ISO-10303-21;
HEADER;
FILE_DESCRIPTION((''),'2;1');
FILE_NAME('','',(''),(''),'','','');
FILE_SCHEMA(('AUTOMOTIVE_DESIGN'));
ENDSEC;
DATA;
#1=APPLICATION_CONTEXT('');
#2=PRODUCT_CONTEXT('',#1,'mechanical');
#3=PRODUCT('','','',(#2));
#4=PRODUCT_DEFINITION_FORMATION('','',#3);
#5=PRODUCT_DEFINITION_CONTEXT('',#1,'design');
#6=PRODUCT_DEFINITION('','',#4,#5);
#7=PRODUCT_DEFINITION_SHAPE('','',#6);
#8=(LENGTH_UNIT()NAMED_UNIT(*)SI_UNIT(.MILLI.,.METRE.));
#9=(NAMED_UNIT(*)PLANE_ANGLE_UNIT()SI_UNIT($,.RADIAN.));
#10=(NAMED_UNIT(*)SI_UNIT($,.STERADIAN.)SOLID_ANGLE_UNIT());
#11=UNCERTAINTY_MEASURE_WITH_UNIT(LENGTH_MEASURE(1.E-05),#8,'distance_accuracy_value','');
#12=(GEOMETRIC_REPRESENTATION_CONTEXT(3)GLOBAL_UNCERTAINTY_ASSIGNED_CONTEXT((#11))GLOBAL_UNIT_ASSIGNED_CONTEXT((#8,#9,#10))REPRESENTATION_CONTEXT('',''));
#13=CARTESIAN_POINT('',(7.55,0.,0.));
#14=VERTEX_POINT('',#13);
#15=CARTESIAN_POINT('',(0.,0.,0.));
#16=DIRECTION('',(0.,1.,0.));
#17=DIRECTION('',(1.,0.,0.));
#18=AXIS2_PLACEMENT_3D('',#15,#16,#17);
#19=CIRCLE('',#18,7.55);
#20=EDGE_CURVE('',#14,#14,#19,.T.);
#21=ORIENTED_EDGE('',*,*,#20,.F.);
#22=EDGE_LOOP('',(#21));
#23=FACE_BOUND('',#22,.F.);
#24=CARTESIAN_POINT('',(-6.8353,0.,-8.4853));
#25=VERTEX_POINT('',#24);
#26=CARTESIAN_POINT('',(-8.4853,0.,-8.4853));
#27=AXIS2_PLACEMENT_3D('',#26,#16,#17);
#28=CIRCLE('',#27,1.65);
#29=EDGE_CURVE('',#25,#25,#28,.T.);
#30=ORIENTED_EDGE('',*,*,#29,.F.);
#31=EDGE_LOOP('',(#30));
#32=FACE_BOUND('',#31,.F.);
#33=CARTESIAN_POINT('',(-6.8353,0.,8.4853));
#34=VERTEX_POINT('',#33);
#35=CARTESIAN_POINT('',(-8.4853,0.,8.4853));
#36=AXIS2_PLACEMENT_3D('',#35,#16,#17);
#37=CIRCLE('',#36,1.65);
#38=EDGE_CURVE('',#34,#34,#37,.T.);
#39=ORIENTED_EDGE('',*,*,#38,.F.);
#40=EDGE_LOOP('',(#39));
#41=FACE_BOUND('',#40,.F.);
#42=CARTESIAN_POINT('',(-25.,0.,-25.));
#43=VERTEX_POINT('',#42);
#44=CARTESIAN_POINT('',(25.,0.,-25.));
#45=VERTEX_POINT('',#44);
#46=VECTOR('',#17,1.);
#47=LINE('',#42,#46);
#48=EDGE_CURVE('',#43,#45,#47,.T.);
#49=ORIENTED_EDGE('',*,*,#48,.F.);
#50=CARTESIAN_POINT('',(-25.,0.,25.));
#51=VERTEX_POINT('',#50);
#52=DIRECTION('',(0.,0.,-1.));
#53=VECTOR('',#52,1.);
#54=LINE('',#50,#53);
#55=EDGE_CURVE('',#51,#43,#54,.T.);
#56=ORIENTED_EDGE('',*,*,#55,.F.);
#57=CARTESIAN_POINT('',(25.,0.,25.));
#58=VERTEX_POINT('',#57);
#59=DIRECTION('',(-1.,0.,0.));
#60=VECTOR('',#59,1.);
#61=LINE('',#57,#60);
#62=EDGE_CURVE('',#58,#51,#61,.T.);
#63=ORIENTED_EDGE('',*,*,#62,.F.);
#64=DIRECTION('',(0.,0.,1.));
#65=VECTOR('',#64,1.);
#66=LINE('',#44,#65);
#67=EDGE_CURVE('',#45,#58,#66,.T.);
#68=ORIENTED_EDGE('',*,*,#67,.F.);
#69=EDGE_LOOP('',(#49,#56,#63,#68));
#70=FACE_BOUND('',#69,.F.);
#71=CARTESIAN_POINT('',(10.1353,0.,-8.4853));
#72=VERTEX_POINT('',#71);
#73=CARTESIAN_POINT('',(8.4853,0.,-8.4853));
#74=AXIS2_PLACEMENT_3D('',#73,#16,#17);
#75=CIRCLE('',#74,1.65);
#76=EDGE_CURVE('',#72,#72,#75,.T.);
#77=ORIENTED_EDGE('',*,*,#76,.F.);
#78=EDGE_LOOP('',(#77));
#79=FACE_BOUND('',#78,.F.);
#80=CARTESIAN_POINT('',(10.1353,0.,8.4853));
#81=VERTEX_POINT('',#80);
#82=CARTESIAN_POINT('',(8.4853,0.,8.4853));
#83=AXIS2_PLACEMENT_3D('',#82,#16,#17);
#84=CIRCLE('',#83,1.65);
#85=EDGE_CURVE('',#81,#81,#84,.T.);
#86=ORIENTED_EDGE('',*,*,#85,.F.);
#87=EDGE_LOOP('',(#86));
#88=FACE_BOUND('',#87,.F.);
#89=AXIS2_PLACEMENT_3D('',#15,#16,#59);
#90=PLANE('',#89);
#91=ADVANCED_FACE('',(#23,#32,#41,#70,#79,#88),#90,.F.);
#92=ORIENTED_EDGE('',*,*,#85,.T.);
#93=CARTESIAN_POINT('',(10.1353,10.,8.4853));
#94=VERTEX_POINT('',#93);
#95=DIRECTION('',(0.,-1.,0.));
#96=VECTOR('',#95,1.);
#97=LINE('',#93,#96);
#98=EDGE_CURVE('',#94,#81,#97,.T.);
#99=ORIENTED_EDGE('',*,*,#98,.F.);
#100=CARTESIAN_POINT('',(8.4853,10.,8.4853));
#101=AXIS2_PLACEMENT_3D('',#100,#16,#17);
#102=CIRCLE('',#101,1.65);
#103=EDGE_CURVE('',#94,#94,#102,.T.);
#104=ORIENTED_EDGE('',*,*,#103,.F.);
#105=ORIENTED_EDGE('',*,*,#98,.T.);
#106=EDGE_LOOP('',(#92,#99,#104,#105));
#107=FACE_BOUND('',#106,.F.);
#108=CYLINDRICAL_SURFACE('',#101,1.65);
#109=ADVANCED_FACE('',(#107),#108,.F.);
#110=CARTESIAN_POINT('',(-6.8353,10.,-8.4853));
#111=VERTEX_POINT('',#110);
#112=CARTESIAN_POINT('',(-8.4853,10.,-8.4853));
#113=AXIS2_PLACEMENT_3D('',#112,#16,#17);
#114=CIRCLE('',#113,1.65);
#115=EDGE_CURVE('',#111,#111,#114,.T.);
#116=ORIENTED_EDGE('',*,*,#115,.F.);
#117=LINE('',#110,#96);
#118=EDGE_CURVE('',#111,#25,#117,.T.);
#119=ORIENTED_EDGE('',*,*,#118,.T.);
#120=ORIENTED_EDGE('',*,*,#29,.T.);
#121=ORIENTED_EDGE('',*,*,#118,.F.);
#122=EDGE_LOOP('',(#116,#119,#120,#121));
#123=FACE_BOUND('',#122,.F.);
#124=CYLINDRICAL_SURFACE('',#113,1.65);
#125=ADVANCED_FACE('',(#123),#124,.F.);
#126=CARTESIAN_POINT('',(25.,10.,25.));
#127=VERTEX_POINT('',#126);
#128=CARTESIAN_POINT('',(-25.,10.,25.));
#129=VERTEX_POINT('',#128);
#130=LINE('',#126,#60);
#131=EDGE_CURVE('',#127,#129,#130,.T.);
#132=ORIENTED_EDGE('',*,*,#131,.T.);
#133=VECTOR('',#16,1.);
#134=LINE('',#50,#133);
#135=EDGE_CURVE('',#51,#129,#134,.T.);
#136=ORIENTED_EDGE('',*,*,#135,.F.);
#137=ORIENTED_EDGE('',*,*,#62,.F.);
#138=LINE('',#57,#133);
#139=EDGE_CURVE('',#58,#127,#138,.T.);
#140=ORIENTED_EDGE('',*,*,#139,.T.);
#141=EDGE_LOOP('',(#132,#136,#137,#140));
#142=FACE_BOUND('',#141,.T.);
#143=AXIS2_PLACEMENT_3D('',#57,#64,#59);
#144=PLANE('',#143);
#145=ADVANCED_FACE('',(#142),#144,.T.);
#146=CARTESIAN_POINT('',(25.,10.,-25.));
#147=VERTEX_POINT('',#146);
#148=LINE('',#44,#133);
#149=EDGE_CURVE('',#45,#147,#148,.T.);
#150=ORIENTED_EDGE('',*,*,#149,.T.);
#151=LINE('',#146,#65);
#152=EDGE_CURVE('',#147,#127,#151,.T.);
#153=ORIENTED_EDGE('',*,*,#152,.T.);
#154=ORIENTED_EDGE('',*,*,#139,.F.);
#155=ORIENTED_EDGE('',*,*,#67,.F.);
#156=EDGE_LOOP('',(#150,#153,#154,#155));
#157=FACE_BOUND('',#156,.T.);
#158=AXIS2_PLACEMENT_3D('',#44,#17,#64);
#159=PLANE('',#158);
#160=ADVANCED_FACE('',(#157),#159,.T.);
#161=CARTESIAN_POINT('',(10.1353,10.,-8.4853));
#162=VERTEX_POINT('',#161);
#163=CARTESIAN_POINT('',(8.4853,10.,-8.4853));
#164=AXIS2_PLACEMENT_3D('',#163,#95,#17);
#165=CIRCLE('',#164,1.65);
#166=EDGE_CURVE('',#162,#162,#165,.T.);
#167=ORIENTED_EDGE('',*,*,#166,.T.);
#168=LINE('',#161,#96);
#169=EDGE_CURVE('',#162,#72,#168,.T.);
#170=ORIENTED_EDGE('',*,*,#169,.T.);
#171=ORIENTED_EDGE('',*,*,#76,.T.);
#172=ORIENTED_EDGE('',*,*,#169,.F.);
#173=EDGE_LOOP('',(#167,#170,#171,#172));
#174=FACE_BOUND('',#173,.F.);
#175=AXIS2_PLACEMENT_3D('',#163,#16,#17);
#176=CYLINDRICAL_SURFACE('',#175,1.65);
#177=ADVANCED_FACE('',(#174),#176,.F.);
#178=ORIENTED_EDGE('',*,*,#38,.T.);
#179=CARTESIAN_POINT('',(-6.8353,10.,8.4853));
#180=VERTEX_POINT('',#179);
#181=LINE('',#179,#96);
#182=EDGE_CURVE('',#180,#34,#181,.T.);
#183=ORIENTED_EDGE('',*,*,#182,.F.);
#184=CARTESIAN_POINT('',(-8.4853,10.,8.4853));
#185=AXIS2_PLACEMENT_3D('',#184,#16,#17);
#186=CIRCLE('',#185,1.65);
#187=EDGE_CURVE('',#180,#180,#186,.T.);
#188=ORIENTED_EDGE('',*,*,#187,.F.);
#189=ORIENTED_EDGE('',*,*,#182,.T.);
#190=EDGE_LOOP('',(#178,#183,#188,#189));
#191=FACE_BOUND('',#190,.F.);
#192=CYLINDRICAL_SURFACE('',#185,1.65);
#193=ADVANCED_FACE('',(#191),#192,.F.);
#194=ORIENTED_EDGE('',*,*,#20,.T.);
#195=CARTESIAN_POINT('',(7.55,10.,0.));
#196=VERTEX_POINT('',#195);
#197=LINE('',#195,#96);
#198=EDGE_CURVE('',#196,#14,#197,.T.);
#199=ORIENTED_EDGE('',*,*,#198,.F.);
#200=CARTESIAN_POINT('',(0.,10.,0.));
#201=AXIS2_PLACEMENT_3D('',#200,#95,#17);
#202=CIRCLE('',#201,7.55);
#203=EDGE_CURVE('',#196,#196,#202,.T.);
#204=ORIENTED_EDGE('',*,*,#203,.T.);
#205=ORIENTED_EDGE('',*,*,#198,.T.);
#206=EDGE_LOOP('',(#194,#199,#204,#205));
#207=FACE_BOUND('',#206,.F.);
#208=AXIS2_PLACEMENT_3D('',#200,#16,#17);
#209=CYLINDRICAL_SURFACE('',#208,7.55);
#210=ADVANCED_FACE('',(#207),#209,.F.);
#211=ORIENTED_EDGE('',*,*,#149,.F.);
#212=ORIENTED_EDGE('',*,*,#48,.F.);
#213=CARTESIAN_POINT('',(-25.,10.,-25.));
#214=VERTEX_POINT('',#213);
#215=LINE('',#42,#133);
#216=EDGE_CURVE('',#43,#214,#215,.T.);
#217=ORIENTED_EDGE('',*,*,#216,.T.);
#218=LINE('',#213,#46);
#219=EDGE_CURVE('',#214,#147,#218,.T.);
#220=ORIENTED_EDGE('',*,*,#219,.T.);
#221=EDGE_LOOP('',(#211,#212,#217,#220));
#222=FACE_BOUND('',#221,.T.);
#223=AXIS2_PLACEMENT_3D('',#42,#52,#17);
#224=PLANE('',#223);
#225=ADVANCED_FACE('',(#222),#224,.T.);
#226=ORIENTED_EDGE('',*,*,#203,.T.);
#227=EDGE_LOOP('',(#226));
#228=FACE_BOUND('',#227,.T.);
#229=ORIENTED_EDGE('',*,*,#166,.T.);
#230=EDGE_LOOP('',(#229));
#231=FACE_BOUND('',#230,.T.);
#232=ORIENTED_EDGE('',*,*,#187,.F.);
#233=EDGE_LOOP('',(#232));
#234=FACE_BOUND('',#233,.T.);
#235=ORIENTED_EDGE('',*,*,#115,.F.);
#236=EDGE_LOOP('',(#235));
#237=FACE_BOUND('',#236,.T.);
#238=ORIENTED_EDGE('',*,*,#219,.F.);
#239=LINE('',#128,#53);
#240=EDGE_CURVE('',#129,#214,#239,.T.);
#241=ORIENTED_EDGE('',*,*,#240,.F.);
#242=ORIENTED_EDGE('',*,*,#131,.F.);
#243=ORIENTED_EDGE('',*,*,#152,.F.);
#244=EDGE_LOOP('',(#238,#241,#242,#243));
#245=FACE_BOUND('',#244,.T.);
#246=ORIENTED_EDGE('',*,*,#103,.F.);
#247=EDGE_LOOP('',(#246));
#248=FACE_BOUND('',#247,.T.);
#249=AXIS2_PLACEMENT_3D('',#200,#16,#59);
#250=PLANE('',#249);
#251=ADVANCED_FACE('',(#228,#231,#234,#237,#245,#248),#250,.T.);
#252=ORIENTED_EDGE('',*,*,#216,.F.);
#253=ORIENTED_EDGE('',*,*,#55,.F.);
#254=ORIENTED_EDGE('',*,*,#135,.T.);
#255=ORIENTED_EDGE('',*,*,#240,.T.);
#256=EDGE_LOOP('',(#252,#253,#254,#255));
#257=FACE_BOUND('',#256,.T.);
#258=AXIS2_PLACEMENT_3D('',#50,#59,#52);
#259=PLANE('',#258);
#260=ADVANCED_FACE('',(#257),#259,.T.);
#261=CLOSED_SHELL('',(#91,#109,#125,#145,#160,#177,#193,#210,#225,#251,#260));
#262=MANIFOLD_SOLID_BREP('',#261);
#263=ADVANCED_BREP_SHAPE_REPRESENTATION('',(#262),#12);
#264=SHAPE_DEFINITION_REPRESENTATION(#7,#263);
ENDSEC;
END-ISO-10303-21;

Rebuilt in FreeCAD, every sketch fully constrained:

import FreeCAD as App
import Part
import Sketcher
Q = App.Units.Quantity


def add_polygon(sketch, points):
    """Adds a closed chain of lines whose ends are joined by coincident constraints."""
    first, n = sketch.GeometryCount, len(points)
    for a, b in zip(points, points[1:] + points[:1]):
        sketch.addGeometry(Part.LineSegment(App.Vector(*a, 0), App.Vector(*b, 0)), False)
    for i in range(n):
        sketch.addConstraint(Sketcher.Constraint("Coincident", first + i, 2, first + (i + 1) % n, 1))

doc = App.newDocument("Part")
body = doc.addObject("PartDesign::Body", "Body")

# Sketch on XZ plane
sketch1 = body.newObject("Sketcher::SketchObject", "Sketch")
sketch1.AttachmentSupport = (doc.getObject("XZ_Plane"), [""])
sketch1.MapMode = "FlatFace"
add_polygon(sketch1, [(25, -25), (-25, -25), (-25, 25), (25, 25)])  # lines 0-3
sketch1.addConstraint([
    Sketcher.Constraint("Horizontal", 0),
    Sketcher.Constraint("Vertical", 1),
    Sketcher.Constraint("Horizontal", 2),
    Sketcher.Constraint("Vertical", 3),
    Sketcher.Constraint("Symmetric", 0, 2, 2, 2, -1, 1),
    Sketcher.Constraint("Equal", 2, 1),
    Sketcher.Constraint("DistanceX", 0, 2, 0, 1, Q("50 mm")),
])
pad1 = body.newObject("PartDesign::Pad", "Pad")
pad1.Profile = sketch1
pad1.Length = 10
pad1.Reversed = True

# Sketch on XZ plane
sketch2 = body.newObject("Sketcher::SketchObject", "Sketch001")
sketch2.AttachmentSupport = (doc.getObject("XZ_Plane"), [""])
sketch2.MapMode = "FlatFace"
sketch2.AttachmentOffset = App.Placement(App.Vector(0, 0, -10), App.Rotation())
sketch2.addGeometry([
    Part.Circle(App.Vector(0, 0, 0), App.Vector(0, 0, 1), 7.5),  # 0
    Part.Circle(App.Vector(8.5, -8.5, 0), App.Vector(0, 0, 1), 1.6),  # 1
    Part.Circle(App.Vector(-8.5, -8.5, 0), App.Vector(0, 0, 1), 1.6),  # 2
    Part.Circle(App.Vector(-8.5, 8.5, 0), App.Vector(0, 0, 1), 1.6),  # 3
    Part.Circle(App.Vector(8.5, 8.5, 0), App.Vector(0, 0, 1), 1.6),  # 4
], False)
sketch2.addConstraint([
    Sketcher.Constraint("Coincident", 0, 3, -1, 1),
    Sketcher.Constraint("Equal", 1, 2),
    Sketcher.Constraint("Equal", 2, 3),
    Sketcher.Constraint("Equal", 3, 4),
    Sketcher.Constraint("Symmetric", 1, 3, 3, 3, -1, 1),
    Sketcher.Constraint("Symmetric", 2, 3, 4, 3, -1, 1),
    Sketcher.Constraint("Symmetric", 1, 3, 2, 3, -2),
    Sketcher.Constraint("Diameter", 0, Q("15.1 mm")),
    Sketcher.Constraint("Diameter", 1, Q("3.3 mm")),
    Sketcher.Constraint("DistanceX", -1, 1, 1, 3, Q("8.4853 mm")),
    Sketcher.Constraint("DistanceY", 1, 3, -1, 1, Q("8.4853 mm")),
])
pocket1 = body.newObject("PartDesign::Pocket", "Pocket")
pocket1.Profile = sketch2
pocket1.Type = "UpToFirst"
pocket1.Reversed = True

doc.recompute()
